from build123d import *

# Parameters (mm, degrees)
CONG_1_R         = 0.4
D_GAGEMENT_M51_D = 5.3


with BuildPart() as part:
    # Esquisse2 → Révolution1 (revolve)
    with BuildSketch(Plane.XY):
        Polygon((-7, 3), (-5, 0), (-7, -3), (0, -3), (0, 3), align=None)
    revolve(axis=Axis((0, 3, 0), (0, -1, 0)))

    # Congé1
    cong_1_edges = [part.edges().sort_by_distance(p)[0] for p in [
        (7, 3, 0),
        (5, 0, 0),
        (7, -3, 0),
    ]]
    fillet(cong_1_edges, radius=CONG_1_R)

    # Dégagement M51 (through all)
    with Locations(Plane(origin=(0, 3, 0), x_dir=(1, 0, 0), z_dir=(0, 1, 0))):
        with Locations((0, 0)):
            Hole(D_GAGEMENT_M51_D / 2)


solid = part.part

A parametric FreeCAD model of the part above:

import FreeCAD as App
import Part
import Sketcher

V = App.Vector
Q = App.Units.Quantity


def edges_at(feature, points):
    """Names of the edges that pass closest to the given points."""
    edges = feature.Shape.Edges
    near = lambda p: min(range(len(edges)), key=lambda i: edges[i].distToShape(Part.Vertex(*p))[0])
    return sorted({f"Edge{near(p) + 1}" for p in points})


def add_polygon(sketch, points):
    """Adds a closed chain of lines whose ends are joined by coincident constraints."""
    first, n = sketch.GeometryCount, len(points)
    for a, b in zip(points, points[1:] + points[:1]):
        sketch.addGeometry(Part.LineSegment(App.Vector(*a, 0), App.Vector(*b, 0)), False)
    for i in range(n):
        sketch.addConstraint(Sketcher.Constraint("Coincident", first + i, 2, first + (i + 1) % n, 1))

doc = App.newDocument("Part")
params = doc.addObject("Spreadsheet::Sheet", "Params")
for row, (alias, value) in enumerate([
    ("sketch1_width", "7 mm"),
    ("sketch1_height", "6 mm"),
    ("revolution_angle", "360 deg"),
    ("fillet_radius", "0.4 mm"),
    ("sketch2_diameter", "5.3 mm"),
    ("hole_diameter", "5.3 mm"),
], start=1):
    params.set(f"A{row}", alias)
    params.set(f"B{row}", "=" + value)
    params.setAlias(f"B{row}", alias)

body = doc.addObject("PartDesign::Body", "Body")

sketch1 = body.newObject("Sketcher::SketchObject", "Sketch")
sketch1.AttachmentSupport = (doc.getObject("XY_Plane"), [""])
sketch1.MapMode = "FlatFace"
add_polygon(sketch1, [(-7, 3), (-5, 0), (-7, -3), (0, -3), (0, 3)])
sketch1.addConstraint(Sketcher.Constraint("Horizontal", 2))
sketch1.addConstraint(Sketcher.Constraint("Vertical", 3))
sketch1.addConstraint(Sketcher.Constraint("Horizontal", 4))
sketch1.addConstraint(Sketcher.Constraint("Symmetric", 2, 2, 3, 2, -1, 1))
sketch1.addConstraint(Sketcher.Constraint("PointOnObject", 0, 2, -1))
sketch1.addConstraint(Sketcher.Constraint("Vertical", 1, 2, 4, 2))
sketch1.addConstraint(Sketcher.Constraint("DistanceX", 2, 1, 2, 2, Q("7 mm")))
sketch1.addConstraint(Sketcher.Constraint("DistanceY", 3, 1, 3, 2, Q("6 mm")))
sketch1.addConstraint(Sketcher.Constraint("DistanceX", 0, 2, -1, 1, Q("5 mm")))
sketch1.setExpression("Constraints[11]", "Params.sketch1_width")
sketch1.setExpression("Constraints[12]", "Params.sketch1_height")
revolution = body.newObject("PartDesign::Revolution", "Revolution")
revolution.Profile = sketch1
revolution.ReferenceAxis = (sketch1, ["V_Axis"])
revolution.setExpression("Angle", "Params.revolution_angle")
doc.recompute()

fillet = body.newObject("PartDesign::Fillet", "Fillet")
fillet.Base = (revolution, edges_at(revolution, [(7, 3, 0), (5, 0, 0), (7, -3, 0)]))
fillet.setExpression("Radius", "Params.fillet_radius")

sketch2 = body.newObject("Sketcher::SketchObject", "Sketch001")
sketch2.AttachmentSupport = (doc.getObject("XZ_Plane"), [""])
sketch2.MapMode = "FlatFace"
sketch2.AttachmentOffset = App.Placement(V(0, 0, -3), App.Rotation())
sketch2.addGeometry(Part.Circle(V(0, 0, 0), V(0, 0, 1), 2.65), False)
sketch2.addConstraint(Sketcher.Constraint("Coincident", 0, 3, -1, 1))
sketch2.addConstraint(Sketcher.Constraint("Diameter", 0, Q("5.3 mm")))
sketch2.setExpression("Constraints[1]", "Params.sketch2_diameter")
doc.recompute()
hole = body.newObject("PartDesign::Hole", "Hole")
hole.Profile = sketch2
hole.ThreadType = "None"
hole.setExpression("Diameter", "Params.hole_diameter")
hole.DepthType = "ThroughAll"
hole.Reversed = True

doc.recompute()
